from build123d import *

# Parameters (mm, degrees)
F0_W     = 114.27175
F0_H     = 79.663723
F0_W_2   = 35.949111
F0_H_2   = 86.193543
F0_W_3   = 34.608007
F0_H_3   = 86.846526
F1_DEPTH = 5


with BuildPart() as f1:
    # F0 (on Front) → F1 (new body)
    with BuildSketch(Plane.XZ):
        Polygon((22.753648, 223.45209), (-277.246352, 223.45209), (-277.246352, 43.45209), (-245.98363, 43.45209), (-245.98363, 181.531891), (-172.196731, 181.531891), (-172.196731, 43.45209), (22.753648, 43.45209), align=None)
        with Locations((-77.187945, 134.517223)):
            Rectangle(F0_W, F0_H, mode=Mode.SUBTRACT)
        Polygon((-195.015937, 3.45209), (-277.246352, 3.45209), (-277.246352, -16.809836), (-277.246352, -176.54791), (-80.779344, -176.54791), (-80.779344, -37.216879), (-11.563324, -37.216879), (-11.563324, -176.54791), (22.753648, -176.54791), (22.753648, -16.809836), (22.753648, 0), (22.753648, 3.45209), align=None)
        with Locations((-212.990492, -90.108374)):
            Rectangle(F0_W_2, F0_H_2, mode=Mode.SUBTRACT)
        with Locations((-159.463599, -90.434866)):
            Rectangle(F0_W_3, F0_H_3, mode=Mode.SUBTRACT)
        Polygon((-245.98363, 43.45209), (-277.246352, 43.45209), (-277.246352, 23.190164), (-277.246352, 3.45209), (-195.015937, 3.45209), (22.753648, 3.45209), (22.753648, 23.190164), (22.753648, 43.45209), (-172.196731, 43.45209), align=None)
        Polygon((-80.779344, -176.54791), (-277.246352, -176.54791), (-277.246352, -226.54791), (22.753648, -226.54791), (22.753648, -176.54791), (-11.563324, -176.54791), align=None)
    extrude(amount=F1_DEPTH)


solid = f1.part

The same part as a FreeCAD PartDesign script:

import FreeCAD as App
import Part
import Sketcher


def add_polygon(sketch, points):
    """Adds a closed chain of lines whose ends are joined by coincident constraints."""
    first, n = sketch.GeometryCount, len(points)
    for a, b in zip(points, points[1:] + points[:1]):
        sketch.addGeometry(Part.LineSegment(App.Vector(*a, 0), App.Vector(*b, 0)), False)
    for i in range(n):
        sketch.addConstraint(Sketcher.Constraint("Coincident", first + i, 2, first + (i + 1) % n, 1))

doc = App.newDocument("Part")
body = doc.addObject("PartDesign::Body", "Body")

# Sketch on XZ plane
sketch1 = body.newObject("Sketcher::SketchObject", "Sketch")
sketch1.AttachmentSupport = (doc.getObject("XZ_Plane"), [""])
sketch1.MapMode = "FlatFace"
add_polygon(sketch1, [(22.753648, 223.45209), (-277.246352, 223.45209), (-277.246352, -226.54791), (22.753648, -226.54791)])  # lines 0-3
add_polygon(sketch1, [(-80.779344, -176.54791), (-80.779344, -37.216879), (-11.563324, -37.216879), (-11.563324, -176.54791)])  # lines 4-7
add_polygon(sketch1, [(-172.196731, 181.531891), (-172.196731, 43.45209), (-245.98363, 43.45209), (-245.98363, 181.531891)])  # lines 8-11
add_polygon(sketch1, [(-20.05207, 94.685361), (-134.32382, 94.685361), (-134.32382, 174.349085), (-20.05207, 174.349085)])  # lines 12-15
add_polygon(sketch1, [(-195.015937, -47.011603), (-195.015937, -133.205145), (-230.965047, -133.205145), (-230.965047, -47.011603)])  # lines 16-19
add_polygon(sketch1, [(-142.159595, -133.858129), (-176.767603, -133.858129), (-176.767603, -47.011603), (-142.159595, -47.011603)])  # lines 20-23
sketch1.addConstraint([
    Sketcher.Constraint("Horizontal", 0),
    Sketcher.Constraint("Vertical", 1),
    Sketcher.Constraint("Horizontal", 2),
    Sketcher.Constraint("Vertical", 3),
    Sketcher.Constraint("Vertical", 4),
    Sketcher.Constraint("Horizontal", 5),
    Sketcher.Constraint("Vertical", 6),
    Sketcher.Constraint("Horizontal", 7),
    Sketcher.Constraint("Vertical", 8),
    Sketcher.Constraint("Horizontal", 9),
    Sketcher.Constraint("Vertical", 10),
    Sketcher.Constraint("Horizontal", 11),
    Sketcher.Constraint("Horizontal", 12),
    Sketcher.Constraint("Vertical", 13),
    Sketcher.Constraint("Horizontal", 14),
    Sketcher.Constraint("Vertical", 15),
    Sketcher.Constraint("Vertical", 16),
    Sketcher.Constraint("Horizontal", 17),
    Sketcher.Constraint("Vertical", 18),
    Sketcher.Constraint("Horizontal", 19),
    Sketcher.Constraint("Horizontal", 20),
    Sketcher.Constraint("Vertical", 21),
    Sketcher.Constraint("Horizontal", 22),
    Sketcher.Constraint("Vertical", 23),
    Sketcher.Constraint("Horizontal", 19, 2, 21, 2),
    Sketcher.Constraint("DistanceX", 0, 2, 0, 1, 300.0),
    Sketcher.Constraint("DistanceY", 1, 2, 1, 1, 450.0),
    Sketcher.Constraint("DistanceY", 2, 2, 6, 2, 50.0),
    Sketcher.Constraint("DistanceY", 8, 2, 0, 2, 180.0),
    Sketcher.Constraint("DistanceX", 9, 2, 9, 1, 73.786899),
    Sketcher.Constraint("DistanceY", 8, 2, 8, 1, 138.079801),
    Sketcher.Constraint("DistanceX", 5, 1, 5, 2, 69.21602),
    Sketcher.Constraint("DistanceX", 12, 2, 12, 1, 114.27175),
    Sketcher.Constraint("DistanceX", 17, 2, 17, 1, 35.949111),
    Sketcher.Constraint("DistanceY", 4, 1, 4, 2, 139.331031),
    Sketcher.Constraint("DistanceX", 20, 2, 20, 1, 34.608007),
    Sketcher.Constraint("DistanceY", 13, 1, 13, 2, 79.663723),
    Sketcher.Constraint("DistanceY", 16, 2, 16, 1, 86.193543),
    Sketcher.Constraint("DistanceY", 21, 1, 21, 2, 86.846526),
    Sketcher.Constraint("DistanceX", 0, 2, -1, 1, 277.246352),
    Sketcher.Constraint("DistanceY", -1, 1, 0, 2, 223.45209),
    Sketcher.Constraint("DistanceX", 8, 2, -1, 1, 172.196731),
    Sketcher.Constraint("DistanceX", 12, 2, -1, 1, 134.32382),
    Sketcher.Constraint("DistanceY", -1, 1, 12, 2, 94.685361),
    Sketcher.Constraint("DistanceY", 20, 2, -1, 1, 133.858129),
    Sketcher.Constraint("DistanceX", 4, 2, 2, 2, 103.532992),
    Sketcher.Constraint("DistanceX", 20, 2, 7, 2, 95.988259),
    Sketcher.Constraint("DistanceX", 19, 2, 22, 2, 52.856341),
])
pad1 = body.newObject("PartDesign::Pad", "Pad")
pad1.Profile = sketch1
pad1.Length = 5

doc.recompute()
